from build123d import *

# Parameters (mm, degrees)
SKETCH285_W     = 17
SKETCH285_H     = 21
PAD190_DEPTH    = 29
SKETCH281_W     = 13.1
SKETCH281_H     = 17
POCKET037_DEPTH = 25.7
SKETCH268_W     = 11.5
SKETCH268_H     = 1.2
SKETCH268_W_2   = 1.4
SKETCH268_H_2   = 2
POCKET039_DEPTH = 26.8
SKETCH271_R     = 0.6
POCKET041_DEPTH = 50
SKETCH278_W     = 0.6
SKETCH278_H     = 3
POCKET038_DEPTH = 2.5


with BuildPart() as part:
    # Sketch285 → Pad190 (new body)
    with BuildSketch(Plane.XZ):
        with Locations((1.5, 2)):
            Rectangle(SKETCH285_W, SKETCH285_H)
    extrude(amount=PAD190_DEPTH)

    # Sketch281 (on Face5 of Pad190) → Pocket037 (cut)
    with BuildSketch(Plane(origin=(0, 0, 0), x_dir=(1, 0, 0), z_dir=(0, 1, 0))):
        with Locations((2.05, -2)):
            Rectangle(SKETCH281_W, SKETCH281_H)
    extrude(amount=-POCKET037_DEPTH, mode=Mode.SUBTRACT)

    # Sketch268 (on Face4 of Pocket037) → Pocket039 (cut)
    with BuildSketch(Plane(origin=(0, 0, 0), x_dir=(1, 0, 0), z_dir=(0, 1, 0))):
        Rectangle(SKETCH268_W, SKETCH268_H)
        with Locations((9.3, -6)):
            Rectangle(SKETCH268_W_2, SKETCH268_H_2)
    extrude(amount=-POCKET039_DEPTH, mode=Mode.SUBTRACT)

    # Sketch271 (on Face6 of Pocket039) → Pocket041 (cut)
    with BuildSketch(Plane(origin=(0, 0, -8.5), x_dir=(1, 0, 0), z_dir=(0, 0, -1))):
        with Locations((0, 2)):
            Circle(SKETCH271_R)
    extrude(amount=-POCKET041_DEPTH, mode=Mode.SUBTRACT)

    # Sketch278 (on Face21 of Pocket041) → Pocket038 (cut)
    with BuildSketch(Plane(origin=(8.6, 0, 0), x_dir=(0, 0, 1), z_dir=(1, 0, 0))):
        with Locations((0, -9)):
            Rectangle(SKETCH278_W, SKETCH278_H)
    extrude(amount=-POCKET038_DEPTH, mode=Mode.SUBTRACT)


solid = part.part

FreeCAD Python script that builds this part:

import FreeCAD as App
import Part
import Sketcher
from FreeCAD import Vector
Q = App.Units.Quantity


def add_polygon(sketch, points):
    """Adds a closed chain of lines whose ends are joined by coincident constraints."""
    first, n = sketch.GeometryCount, len(points)
    for a, b in zip(points, points[1:] + points[:1]):
        sketch.addGeometry(Part.LineSegment(App.Vector(*a, 0), App.Vector(*b, 0)), False)
    for i in range(n):
        sketch.addConstraint(Sketcher.Constraint("Coincident", first + i, 2, first + (i + 1) % n, 1))

doc = App.newDocument("Part")
body = doc.addObject("PartDesign::Body", "Body")

# Sketch on XZ plane
sketch1 = body.newObject("Sketcher::SketchObject", "Sketch")
sketch1.AttachmentSupport = (doc.getObject("XZ_Plane"), [""])
sketch1.MapMode = "FlatFace"
add_polygon(sketch1, [(-7, 12), (-7, -8), (10, -8), (10, 12)])  # lines 0-3
sketch1.addConstraint([
    Sketcher.Constraint("Vertical", 0),
    Sketcher.Constraint("Horizontal", 1),
    Sketcher.Constraint("Vertical", 2),
    Sketcher.Constraint("Horizontal", 3),
    Sketcher.Constraint("DistanceX", 1, 1, 1, 2, Q("17 mm")),
    Sketcher.Constraint("DistanceY", 0, 2, 0, 1, Q("21 mm")),
    Sketcher.Constraint("DistanceX", 0, 2, -1, 1, Q("7 mm")),
    Sketcher.Constraint("DistanceY", 0, 2, -1, 1, Q("8.5 mm")),
])
pad1 = body.newObject("PartDesign::Pad", "Pad")
pad1.Profile = sketch1
pad1.Length = 29

# Sketch on XZ plane
sketch2 = body.newObject("Sketcher::SketchObject", "Sketch001")
sketch2.AttachmentSupport = (doc.getObject("XZ_Plane"), [""])
sketch2.MapMode = "FlatFace"
add_polygon(sketch2, [(-4, -6), (-4, 10), (9, 10), (9, -6)])  # lines 0-3
sketch2.addConstraint([
    Sketcher.Constraint("Vertical", 0),
    Sketcher.Constraint("Horizontal", 1),
    Sketcher.Constraint("Vertical", 2),
    Sketcher.Constraint("Horizontal", 3),
    Sketcher.Constraint("DistanceY", 0, 1, 0, 2, Q("17 mm")),
    Sketcher.Constraint("DistanceX", 1, 1, 1, 2, Q("13.1 mm")),
    Sketcher.Constraint("DistanceX", 0, 2, -1, 1, Q("4.5 mm")),
    Sketcher.Constraint("DistanceY", -1, 1, 0, 2, Q("10.5 mm")),
])
pocket1 = body.newObject("PartDesign::Pocket", "Pocket")
pocket1.Profile = sketch2
pocket1.Length = 25.7
pocket1.Reversed = True

# Sketch on XZ plane
sketch3 = body.newObject("Sketcher::SketchObject", "Sketch002")
sketch3.AttachmentSupport = (doc.getObject("XZ_Plane"), [""])
sketch3.MapMode = "FlatFace"
add_polygon(sketch3, [(-5.8, -0.6), (-5.8, 0.6), (5.8, 0.6), (5.8, -0.6)])  # lines 0-3
add_polygon(sketch3, [(8.6, 5), (8.6, 7), (10, 7), (10, 5)])  # lines 4-7
sketch3.addConstraint([
    Sketcher.Constraint("Vertical", 0),
    Sketcher.Constraint("Horizontal", 1),
    Sketcher.Constraint("Vertical", 2),
    Sketcher.Constraint("Horizontal", 3),
    Sketcher.Constraint("Vertical", 4),
    Sketcher.Constraint("Horizontal", 5),
    Sketcher.Constraint("Vertical", 6),
    Sketcher.Constraint("Horizontal", 7),
    Sketcher.Constraint("Symmetric", 0, 2, 2, 2, -1, 1),
    Sketcher.Constraint("DistanceY", 4, 1, 4, 2, Q("2 mm")),
    Sketcher.Constraint("DistanceX", 1, 1, 1, 2, Q("11.5 mm")),
    Sketcher.Constraint("DistanceX", 5, 1, 5, 2, Q("1.4 mm")),
    Sketcher.Constraint("DistanceY", 0, 1, 0, 2, Q("1.2 mm")),
    Sketcher.Constraint("DistanceY", -1, 1, 4, 2, Q("7 mm")),
    Sketcher.Constraint("DistanceX", -1, 1, 5, 2, Q("10 mm")),
])
pocket2 = body.newObject("PartDesign::Pocket", "Pocket001")
pocket2.Profile = sketch3
pocket2.Length = 26.8
pocket2.Reversed = True

# Sketch on XY plane
sketch4 = body.newObject("Sketcher::SketchObject", "Sketch003")
sketch4.AttachmentSupport = (doc.getObject("XY_Plane"), [""])
sketch4.MapMode = "FlatFace"
sketch4.AttachmentOffset = App.Placement(Vector(0, 0, -8.5), App.Rotation())
sketch4.addGeometry(Part.Circle(Vector(0, -2, 0), Vector(0, 0, 1), 0.6), False)
sketch4.addConstraint([
    Sketcher.Constraint("PointOnObject", 0, 3, -2),
    Sketcher.Constraint("Diameter", 0, Q("1.2 mm")),
    Sketcher.Constraint("DistanceY", 0, 3, -1, 1, Q("2 mm")),
])
pocket3 = body.newObject("PartDesign::Pocket", "Pocket002")
pocket3.Profile = sketch4
pocket3.Length = 50
pocket3.Reversed = True

# Sketch on YZ plane
sketch5 = body.newObject("Sketcher::SketchObject", "Sketch004")
sketch5.AttachmentSupport = (doc.getObject("YZ_Plane"), [""])
sketch5.MapMode = "FlatFace"
sketch5.AttachmentOffset = App.Placement(Vector(0, 0, 8.6), App.Rotation())
add_polygon(sketch5, [(7.5, -0.3), (10.5, -0.3), (10.5, 0.3), (7.5, 0.3)])  # lines 0-3
sketch5.addConstraint([
    Sketcher.Constraint("Horizontal", 0),
    Sketcher.Constraint("Vertical", 1),
    Sketcher.Constraint("Horizontal", 2),
    Sketcher.Constraint("Vertical", 3),
    Sketcher.Constraint("DistanceX", 0, 1, 0, 2, Q("3 mm")),
    Sketcher.Constraint("DistanceY", 1, 1, 1, 2, Q("0.6 mm")),
    Sketcher.Constraint("DistanceX", -1, 1, 0, 2, Q("10.5 mm")),
    Sketcher.Constraint("DistanceY", 0, 2, -1, 1, Q("0.3 mm")),
])
pocket4 = body.newObject("PartDesign::Pocket", "Pocket003")
pocket4.Profile = sketch5
pocket4.Length = 2.5

doc.recompute()
